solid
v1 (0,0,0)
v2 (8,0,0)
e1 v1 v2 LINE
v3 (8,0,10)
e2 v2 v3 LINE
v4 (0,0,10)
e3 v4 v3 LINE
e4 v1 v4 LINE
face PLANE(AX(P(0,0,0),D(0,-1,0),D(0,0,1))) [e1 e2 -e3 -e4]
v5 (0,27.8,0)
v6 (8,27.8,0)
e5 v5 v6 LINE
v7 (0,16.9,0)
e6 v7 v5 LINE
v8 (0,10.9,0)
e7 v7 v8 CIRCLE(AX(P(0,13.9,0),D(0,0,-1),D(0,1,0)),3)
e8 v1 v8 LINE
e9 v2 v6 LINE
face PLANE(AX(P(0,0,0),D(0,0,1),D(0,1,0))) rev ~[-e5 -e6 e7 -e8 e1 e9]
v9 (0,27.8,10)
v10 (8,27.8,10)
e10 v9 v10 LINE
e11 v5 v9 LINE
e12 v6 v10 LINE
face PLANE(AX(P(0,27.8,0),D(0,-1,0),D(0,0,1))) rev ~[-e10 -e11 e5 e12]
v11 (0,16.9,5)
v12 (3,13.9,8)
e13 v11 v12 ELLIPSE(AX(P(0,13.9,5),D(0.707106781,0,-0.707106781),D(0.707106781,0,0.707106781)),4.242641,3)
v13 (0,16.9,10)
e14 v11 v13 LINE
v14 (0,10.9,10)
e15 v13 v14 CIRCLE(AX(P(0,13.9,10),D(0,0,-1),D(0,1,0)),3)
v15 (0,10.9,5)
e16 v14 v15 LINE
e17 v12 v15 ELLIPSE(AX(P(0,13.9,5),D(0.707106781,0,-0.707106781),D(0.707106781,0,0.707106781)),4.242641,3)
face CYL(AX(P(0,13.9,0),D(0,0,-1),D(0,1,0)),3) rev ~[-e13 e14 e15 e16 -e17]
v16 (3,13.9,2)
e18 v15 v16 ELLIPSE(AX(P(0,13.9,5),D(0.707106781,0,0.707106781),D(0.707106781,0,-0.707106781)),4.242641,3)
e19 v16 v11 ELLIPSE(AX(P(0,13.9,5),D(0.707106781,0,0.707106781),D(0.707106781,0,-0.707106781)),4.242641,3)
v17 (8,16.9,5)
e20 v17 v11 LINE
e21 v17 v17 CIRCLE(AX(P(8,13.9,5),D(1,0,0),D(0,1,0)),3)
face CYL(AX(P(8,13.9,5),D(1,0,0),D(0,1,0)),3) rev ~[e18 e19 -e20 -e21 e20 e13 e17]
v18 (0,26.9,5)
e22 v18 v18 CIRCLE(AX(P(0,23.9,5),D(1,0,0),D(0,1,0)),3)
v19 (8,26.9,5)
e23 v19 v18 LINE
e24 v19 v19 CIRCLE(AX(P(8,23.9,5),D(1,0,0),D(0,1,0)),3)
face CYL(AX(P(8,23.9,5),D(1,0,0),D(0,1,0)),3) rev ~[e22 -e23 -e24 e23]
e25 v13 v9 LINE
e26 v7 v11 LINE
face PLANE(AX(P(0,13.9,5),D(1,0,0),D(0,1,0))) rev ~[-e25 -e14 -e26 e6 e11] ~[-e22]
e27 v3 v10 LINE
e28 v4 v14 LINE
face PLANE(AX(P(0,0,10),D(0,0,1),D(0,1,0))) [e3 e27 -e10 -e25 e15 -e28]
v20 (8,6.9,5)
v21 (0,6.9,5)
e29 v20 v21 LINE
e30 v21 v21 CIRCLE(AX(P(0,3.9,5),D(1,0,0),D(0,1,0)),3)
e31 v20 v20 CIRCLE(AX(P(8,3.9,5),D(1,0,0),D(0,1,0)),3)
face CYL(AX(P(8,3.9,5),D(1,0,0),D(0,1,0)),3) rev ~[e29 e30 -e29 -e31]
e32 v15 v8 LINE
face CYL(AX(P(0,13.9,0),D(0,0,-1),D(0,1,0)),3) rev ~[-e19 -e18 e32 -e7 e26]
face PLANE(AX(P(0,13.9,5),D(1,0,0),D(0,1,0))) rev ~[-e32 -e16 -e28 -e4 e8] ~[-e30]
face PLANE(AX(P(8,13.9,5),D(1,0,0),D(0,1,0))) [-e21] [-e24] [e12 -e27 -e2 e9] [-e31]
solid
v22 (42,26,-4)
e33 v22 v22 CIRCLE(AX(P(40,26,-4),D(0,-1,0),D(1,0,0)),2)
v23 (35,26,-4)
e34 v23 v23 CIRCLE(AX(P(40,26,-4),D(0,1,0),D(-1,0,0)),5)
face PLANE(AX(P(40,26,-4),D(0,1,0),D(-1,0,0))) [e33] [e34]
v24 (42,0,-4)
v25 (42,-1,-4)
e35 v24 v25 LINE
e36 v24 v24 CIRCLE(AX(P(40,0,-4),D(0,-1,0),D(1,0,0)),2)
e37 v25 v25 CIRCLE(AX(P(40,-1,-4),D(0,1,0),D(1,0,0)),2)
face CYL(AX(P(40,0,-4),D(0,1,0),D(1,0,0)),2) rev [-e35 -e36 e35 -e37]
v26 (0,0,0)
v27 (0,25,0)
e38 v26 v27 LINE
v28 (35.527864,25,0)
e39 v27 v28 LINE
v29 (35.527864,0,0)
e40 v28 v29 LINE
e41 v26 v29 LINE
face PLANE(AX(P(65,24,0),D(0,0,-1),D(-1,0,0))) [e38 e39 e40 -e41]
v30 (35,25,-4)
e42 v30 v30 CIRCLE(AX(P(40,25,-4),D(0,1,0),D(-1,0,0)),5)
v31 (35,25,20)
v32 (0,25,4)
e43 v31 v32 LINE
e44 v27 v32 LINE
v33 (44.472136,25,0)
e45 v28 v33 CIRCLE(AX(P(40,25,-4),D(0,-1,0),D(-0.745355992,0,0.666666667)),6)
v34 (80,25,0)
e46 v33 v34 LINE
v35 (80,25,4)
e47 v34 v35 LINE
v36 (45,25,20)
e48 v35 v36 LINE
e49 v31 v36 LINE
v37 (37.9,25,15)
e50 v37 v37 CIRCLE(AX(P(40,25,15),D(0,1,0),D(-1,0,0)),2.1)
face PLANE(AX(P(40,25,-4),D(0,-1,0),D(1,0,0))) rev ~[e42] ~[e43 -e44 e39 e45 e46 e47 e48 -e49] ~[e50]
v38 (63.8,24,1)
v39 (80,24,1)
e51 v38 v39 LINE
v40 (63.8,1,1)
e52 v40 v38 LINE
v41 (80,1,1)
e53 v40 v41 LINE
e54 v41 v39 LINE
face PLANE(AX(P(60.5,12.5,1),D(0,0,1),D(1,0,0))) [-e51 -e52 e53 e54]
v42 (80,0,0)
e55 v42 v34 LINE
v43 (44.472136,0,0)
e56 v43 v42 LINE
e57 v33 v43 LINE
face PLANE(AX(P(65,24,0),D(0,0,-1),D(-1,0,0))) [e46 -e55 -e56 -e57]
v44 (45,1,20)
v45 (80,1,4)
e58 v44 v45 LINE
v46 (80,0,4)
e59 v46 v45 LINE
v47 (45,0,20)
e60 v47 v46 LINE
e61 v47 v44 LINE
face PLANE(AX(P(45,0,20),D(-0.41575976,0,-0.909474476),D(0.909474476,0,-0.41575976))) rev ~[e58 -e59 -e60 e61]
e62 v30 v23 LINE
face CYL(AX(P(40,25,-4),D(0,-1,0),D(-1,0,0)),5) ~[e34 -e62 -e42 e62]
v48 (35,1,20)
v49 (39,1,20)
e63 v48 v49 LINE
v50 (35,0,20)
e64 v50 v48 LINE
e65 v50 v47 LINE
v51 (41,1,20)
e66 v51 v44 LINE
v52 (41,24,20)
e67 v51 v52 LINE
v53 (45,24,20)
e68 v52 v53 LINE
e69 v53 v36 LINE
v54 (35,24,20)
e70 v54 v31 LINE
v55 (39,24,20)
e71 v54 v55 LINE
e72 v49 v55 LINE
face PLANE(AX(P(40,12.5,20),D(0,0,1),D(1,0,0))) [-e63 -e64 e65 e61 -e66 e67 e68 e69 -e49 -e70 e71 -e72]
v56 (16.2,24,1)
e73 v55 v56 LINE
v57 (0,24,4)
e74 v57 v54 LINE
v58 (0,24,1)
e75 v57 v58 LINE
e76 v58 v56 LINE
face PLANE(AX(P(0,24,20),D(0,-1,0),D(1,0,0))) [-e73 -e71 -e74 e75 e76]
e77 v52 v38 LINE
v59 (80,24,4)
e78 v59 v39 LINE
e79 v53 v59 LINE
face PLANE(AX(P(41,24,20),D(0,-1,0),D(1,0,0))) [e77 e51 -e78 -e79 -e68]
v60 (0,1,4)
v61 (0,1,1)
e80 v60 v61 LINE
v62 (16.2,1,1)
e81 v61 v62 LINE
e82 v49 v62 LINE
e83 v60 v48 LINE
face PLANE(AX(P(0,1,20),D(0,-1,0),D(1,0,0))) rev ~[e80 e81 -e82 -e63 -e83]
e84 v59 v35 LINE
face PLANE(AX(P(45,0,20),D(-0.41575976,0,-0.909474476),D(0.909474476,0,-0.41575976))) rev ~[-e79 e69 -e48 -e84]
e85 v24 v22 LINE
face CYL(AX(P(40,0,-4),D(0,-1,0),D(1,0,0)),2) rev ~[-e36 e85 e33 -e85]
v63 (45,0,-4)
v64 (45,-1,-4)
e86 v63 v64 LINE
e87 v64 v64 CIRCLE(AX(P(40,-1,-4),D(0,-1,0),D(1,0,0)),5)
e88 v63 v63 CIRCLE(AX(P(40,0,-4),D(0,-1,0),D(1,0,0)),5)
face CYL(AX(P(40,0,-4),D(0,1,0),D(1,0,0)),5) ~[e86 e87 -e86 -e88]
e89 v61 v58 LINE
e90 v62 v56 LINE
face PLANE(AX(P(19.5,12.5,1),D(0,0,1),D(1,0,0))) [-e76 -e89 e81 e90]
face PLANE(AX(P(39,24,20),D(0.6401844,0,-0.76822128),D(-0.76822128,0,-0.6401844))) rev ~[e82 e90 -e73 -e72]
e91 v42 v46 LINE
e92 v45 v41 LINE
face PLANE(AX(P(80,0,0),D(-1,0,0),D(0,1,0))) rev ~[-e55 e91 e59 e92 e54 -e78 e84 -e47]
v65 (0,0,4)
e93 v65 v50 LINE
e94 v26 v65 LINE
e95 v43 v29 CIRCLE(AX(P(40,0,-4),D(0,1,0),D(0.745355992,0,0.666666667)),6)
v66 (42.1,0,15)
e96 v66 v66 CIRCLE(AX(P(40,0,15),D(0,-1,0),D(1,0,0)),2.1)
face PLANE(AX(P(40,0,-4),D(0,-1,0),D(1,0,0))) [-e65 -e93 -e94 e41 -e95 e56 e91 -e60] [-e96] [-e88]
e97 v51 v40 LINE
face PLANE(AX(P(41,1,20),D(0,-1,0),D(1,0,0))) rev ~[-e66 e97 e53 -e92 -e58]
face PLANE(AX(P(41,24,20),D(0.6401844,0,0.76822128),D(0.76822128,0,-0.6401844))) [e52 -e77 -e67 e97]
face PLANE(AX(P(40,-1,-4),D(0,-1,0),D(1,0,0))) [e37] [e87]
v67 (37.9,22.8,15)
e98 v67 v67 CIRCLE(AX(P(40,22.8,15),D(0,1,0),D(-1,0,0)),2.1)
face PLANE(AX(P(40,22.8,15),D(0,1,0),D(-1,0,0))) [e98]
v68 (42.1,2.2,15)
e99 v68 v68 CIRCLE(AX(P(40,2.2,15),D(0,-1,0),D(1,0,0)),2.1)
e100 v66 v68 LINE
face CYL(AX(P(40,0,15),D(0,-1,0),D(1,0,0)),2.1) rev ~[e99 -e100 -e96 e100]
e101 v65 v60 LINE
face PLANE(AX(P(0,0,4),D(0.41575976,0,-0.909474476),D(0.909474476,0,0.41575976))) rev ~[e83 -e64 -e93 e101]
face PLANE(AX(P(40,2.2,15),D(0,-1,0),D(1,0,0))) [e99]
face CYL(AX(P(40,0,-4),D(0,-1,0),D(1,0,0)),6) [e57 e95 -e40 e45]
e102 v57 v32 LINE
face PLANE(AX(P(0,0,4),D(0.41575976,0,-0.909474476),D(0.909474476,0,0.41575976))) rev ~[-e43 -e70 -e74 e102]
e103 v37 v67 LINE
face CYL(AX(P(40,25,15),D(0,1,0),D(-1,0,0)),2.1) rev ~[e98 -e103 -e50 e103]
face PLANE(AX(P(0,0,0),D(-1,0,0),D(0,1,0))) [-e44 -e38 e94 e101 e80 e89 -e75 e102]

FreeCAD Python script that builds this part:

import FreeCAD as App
import Part
import Sketcher
from FreeCAD import Vector

doc = App.newDocument("Part")
params = doc.addObject("Spreadsheet::Sheet", "Params")
for row, (alias, value) in enumerate([
    ("sketch1_width", "80 mm"),
    ("sketch1_height", "25 mm"),
    ("pad1_length", "20 mm"),
    ("sketch2_width", "39 mm"),
    ("sketch2_height", "23 mm"),
    ("pocket1_length", "19 mm"),
    ("sketch3_width", "35 mm"),
    ("sketch3_height", "16 mm"),
    ("sketch4_width", "24 mm"),
    ("sketch4_height", "20 mm"),
    ("pad2_length", "23 mm"),
    ("sketch5_width", "24 mm"),
    ("sketch5_height", "20 mm"),
    ("pad3_length", "23 mm"),
    ("sketch6_diameter", "6 mm"),
    ("pad4_length", "25 mm"),
    ("sketch7_diameter", "4.2 mm"),
    ("pocket3_length", "2.2 mm"),
    ("sketch8_diameter", "4.2 mm"),
    ("pocket4_length", "2.2 mm"),
    ("sketch9_diameter", "12 mm"),
    ("pad5_length", "25 mm"),
    ("sketch10_diameter", "10 mm"),
    ("pad6_length", "1 mm"),
    ("sketch11_diameter", "10 mm"),
    ("pad7_length", "1 mm"),
    ("sketch12_diameter", "4 mm"),
    ("sketch13_height", "10 mm"),
    ("sketch13_width", "27.8 mm"),
    ("pad8_length", "8 mm"),
    ("sketch14_diameter", "6 mm"),
    ("sketch15_diameter", "6 mm"),
], start=1):
    params.set(f"A{row}", alias)
    params.set(f"B{row}", "=" + value)
    params.setAlias(f"B{row}", alias)

body = doc.addObject("PartDesign::Body", "Body")

sketch1 = body.newObject("Sketcher::SketchObject", "Sketch")
sketch1.AttachmentSupport = (doc.getObject("XY_Plane"), [""])
sketch1.MapMode = "FlatFace"
sketch1.addGeometry([
    Part.LineSegment(Vector(0, 25, 0), Vector(0, 0, 0)),
    Part.LineSegment(Vector(0, 0, 0), Vector(80, 0, 0)),
    Part.LineSegment(Vector(80, 0, 0), Vector(80, 25, 0)),
    Part.LineSegment(Vector(80, 25, 0), Vector(0, 25, 0)),
], False)
sketch1.addConstraint([
    Sketcher.Constraint("Coincident", 0, 2, 1, 1),
    Sketcher.Constraint("Coincident", 1, 2, 2, 1),
    Sketcher.Constraint("Coincident", 2, 2, 3, 1),
    Sketcher.Constraint("Coincident", 3, 2, 0, 1),
    Sketcher.Constraint("Vertical", 0),
    Sketcher.Constraint("Horizontal", 1),
    Sketcher.Constraint("Vertical", 2),
    Sketcher.Constraint("Horizontal", 3),
    Sketcher.Constraint("Coincident", 0, 2, -1, 1),
    Sketcher.Constraint("DistanceX", 1, 1, 1, 2, 80.0),
    Sketcher.Constraint("DistanceY", 0, 2, 0, 1, 25.0),
])
sketch1.setExpression("Constraints[9]", "Params.sketch1_width")
sketch1.setExpression("Constraints[10]", "Params.sketch1_height")
pad1 = body.newObject("PartDesign::Pad", "Pad")
pad1.Profile = sketch1
pad1.setExpression("Length", "Params.pad1_length")

sketch2 = body.newObject("Sketcher::SketchObject", "Sketch001")
sketch2.AttachmentSupport = (doc.getObject("XY_Plane"), [""])
sketch2.MapMode = "FlatFace"
sketch2.AttachmentOffset = App.Placement(Vector(0, 0, 20), App.Rotation())
sketch2.addGeometry([
    Part.LineSegment(Vector(0, 24, 0), Vector(0, 1, 0)),
    Part.LineSegment(Vector(0, 1, 0), Vector(39, 1, 0)),
    Part.LineSegment(Vector(39, 1, 0), Vector(39, 24, 0)),
    Part.LineSegment(Vector(39, 24, 0), Vector(0, 24, 0)),
    Part.LineSegment(Vector(41, 24, 0), Vector(41, 1, 0)),
    Part.LineSegment(Vector(41, 1, 0), Vector(80, 1, 0)),
    Part.LineSegment(Vector(80, 1, 0), Vector(80, 24, 0)),
    Part.LineSegment(Vector(80, 24, 0), Vector(41, 24, 0)),
], False)
sketch2.addConstraint([
    Sketcher.Constraint("Coincident", 0, 2, 1, 1),
    Sketcher.Constraint("Coincident", 1, 2, 2, 1),
    Sketcher.Constraint("Coincident", 2, 2, 3, 1),
    Sketcher.Constraint("Coincident", 3, 2, 0, 1),
    Sketcher.Constraint("Coincident", 4, 2, 5, 1),
    Sketcher.Constraint("Coincident", 5, 2, 6, 1),
    Sketcher.Constraint("Coincident", 6, 2, 7, 1),
    Sketcher.Constraint("Coincident", 7, 2, 4, 1),
    Sketcher.Constraint("Vertical", 0),
    Sketcher.Constraint("Horizontal", 1),
    Sketcher.Constraint("Vertical", 2),
    Sketcher.Constraint("Horizontal", 3),
    Sketcher.Constraint("Vertical", 4),
    Sketcher.Constraint("Horizontal", 5),
    Sketcher.Constraint("Vertical", 6),
    Sketcher.Constraint("Horizontal", 7),
    Sketcher.Constraint("PointOnObject", 0, 2, -2),
    Sketcher.Constraint("Horizontal", 1, 2, 4, 2),
    Sketcher.Constraint("Horizontal", 3, 2, 6, 2),
    Sketcher.Constraint("Equal", 3, 5),
    Sketcher.Constraint("DistanceX", 1, 1, 1, 2, 39.0),
    Sketcher.Constraint("DistanceY", 0, 2, 0, 1, 23.0),
    Sketcher.Constraint("DistanceY", -1, 1, 0, 2, 1.0),
    Sketcher.Constraint("DistanceX", -1, 1, 4, 2, 41.0),
])
sketch2.setExpression("Constraints[20]", "Params.sketch2_width")
sketch2.setExpression("Constraints[21]", "Params.sketch2_height")
pocket1 = body.newObject("PartDesign::Pocket", "Pocket")
pocket1.Profile = sketch2
pocket1.setExpression("Length", "Params.pocket1_length")

sketch3 = body.newObject("Sketcher::SketchObject", "Sketch002")
sketch3.AttachmentSupport = (doc.getObject("XZ_Plane"), [""])
sketch3.MapMode = "FlatFace"
sketch3.addGeometry([
    Part.LineSegment(Vector(0, 4, 0), Vector(35, 20, 0)),
    Part.LineSegment(Vector(35, 20, 0), Vector(0, 20, 0)),
    Part.LineSegment(Vector(0, 20, 0), Vector(0, 4, 0)),
    Part.LineSegment(Vector(80, 4, 0), Vector(80, 20, 0)),
    Part.LineSegment(Vector(80, 20, 0), Vector(45, 20, 0)),
    Part.LineSegment(Vector(45, 20, 0), Vector(80, 4, 0)),
], False)
sketch3.addConstraint([
    Sketcher.Constraint("Coincident", 0, 2, 1, 1),
    Sketcher.Constraint("Coincident", 1, 2, 2, 1),
    Sketcher.Constraint("Coincident", 2, 2, 0, 1),
    Sketcher.Constraint("Coincident", 3, 2, 4, 1),
    Sketcher.Constraint("Coincident", 4, 2, 5, 1),
    Sketcher.Constraint("Coincident", 5, 2, 3, 1),
    Sketcher.Constraint("Horizontal", 1),
    Sketcher.Constraint("Vertical", 2),
    Sketcher.Constraint("Vertical", 3),
    Sketcher.Constraint("Horizontal", 4),
    Sketcher.Constraint("PointOnObject", 1, 2, -2),
    Sketcher.Constraint("Horizontal", 1, 2, 3, 2),
    Sketcher.Constraint("Horizontal", 2, 2, 5, 2),
    Sketcher.Constraint("Equal", 1, 4),
    Sketcher.Constraint("DistanceX", 1, 2, 1, 1, 35.0),
    Sketcher.Constraint("DistanceY", 2, 2, 2, 1, 16.0),
    Sketcher.Constraint("DistanceY", -1, 1, 0, 2, 20.0),
    Sketcher.Constraint("DistanceX", -1, 1, 3, 2, 80.0),
])
sketch3.setExpression("Constraints[14]", "Params.sketch3_width")
sketch3.setExpression("Constraints[15]", "Params.sketch3_height")
pocket2 = body.newObject("PartDesign::Pocket", "Pocket001")
pocket2.Profile = sketch3
pocket2.Type = "ThroughAll"

sketch4 = body.newObject("Sketcher::SketchObject", "Sketch003")
sketch4.AttachmentSupport = (doc.getObject("XZ_Plane"), [""])
sketch4.MapMode = "FlatFace"
sketch4.AttachmentOffset = App.Placement(Vector(0, 0, -24), App.Rotation())
sketch4.addGeometry([
    Part.LineSegment(Vector(15, 0, 0), Vector(39, 0, 0)),
    Part.LineSegment(Vector(39, 0, 0), Vector(39, 20, 0)),
    Part.LineSegment(Vector(39, 20, 0), Vector(15, 0, 0)),
], False)
sketch4.addConstraint([
    Sketcher.Constraint("Coincident", 0, 2, 1, 1),
    Sketcher.Constraint("Coincident", 1, 2, 2, 1),
    Sketcher.Constraint("Coincident", 2, 2, 0, 1),
    Sketcher.Constraint("Horizontal", 0),
    Sketcher.Constraint("Vertical", 1),
    Sketcher.Constraint("PointOnObject", 0, 2, -1),
    Sketcher.Constraint("DistanceX", 0, 1, 0, 2, 24.0),
    Sketcher.Constraint("DistanceY", 1, 1, 1, 2, 20.0),
    Sketcher.Constraint("DistanceX", -1, 1, 0, 2, 39.0),
])
sketch4.setExpression("Constraints[6]", "Params.sketch4_width")
sketch4.setExpression("Constraints[7]", "Params.sketch4_height")
pad2 = body.newObject("PartDesign::Pad", "Pad001")
pad2.Profile = sketch4
pad2.setExpression("Length", "Params.pad2_length")

sketch5 = body.newObject("Sketcher::SketchObject", "Sketch004")
sketch5.AttachmentSupport = (doc.getObject("XZ_Plane"), [""])
sketch5.MapMode = "FlatFace"
sketch5.AttachmentOffset = App.Placement(Vector(0, 0, -24), App.Rotation())
sketch5.addGeometry([
    Part.LineSegment(Vector(41, 20, 0), Vector(41, 0, 0)),
    Part.LineSegment(Vector(41, 0, 0), Vector(65, 0, 0)),
    Part.LineSegment(Vector(65, 0, 0), Vector(41, 20, 0)),
], False)
sketch5.addConstraint([
    Sketcher.Constraint("Coincident", 0, 2, 1, 1),
    Sketcher.Constraint("Coincident", 1, 2, 2, 1),
    Sketcher.Constraint("Coincident", 2, 2, 0, 1),
    Sketcher.Constraint("Vertical", 0),
    Sketcher.Constraint("Horizontal", 1),
    Sketcher.Constraint("PointOnObject", 0, 2, -1),
    Sketcher.Constraint("DistanceX", 1, 1, 1, 2, 24.0),
    Sketcher.Constraint("DistanceY", 0, 2, 0, 1, 20.0),
    Sketcher.Constraint("DistanceX", -1, 1, 0, 2, 41.0),
])
sketch5.setExpression("Constraints[6]", "Params.sketch5_width")
sketch5.setExpression("Constraints[7]", "Params.sketch5_height")
pad3 = body.newObject("PartDesign::Pad", "Pad002")
pad3.Profile = sketch5
pad3.setExpression("Length", "Params.pad3_length")

sketch6 = body.newObject("Sketcher::SketchObject", "Sketch005")
sketch6.AttachmentSupport = (doc.getObject("XZ_Plane"), [""])
sketch6.MapMode = "FlatFace"
sketch6.addGeometry(Part.Circle(Vector(40, 15, 0), Vector(0, 0, 1), 3), False)
sketch6.addConstraint([
    Sketcher.Constraint("Diameter", 0, 6.0),
    Sketcher.Constraint("DistanceX", -1, 1, 0, 3, 40.0),
    Sketcher.Constraint("DistanceY", -1, 1, 0, 3, 15.0),
])
sketch6.setExpression("Constraints[0]", "Params.sketch6_diameter")
pad4 = body.newObject("PartDesign::Pad", "Pad003")
pad4.Profile = sketch6
pad4.setExpression("Length", "Params.pad4_length")
pad4.Reversed = True

sketch7 = body.newObject("Sketcher::SketchObject", "Sketch006")
sketch7.AttachmentSupport = (doc.getObject("XZ_Plane"), [""])
sketch7.MapMode = "FlatFace"
sketch7.addGeometry(Part.Circle(Vector(40, 15, 0), Vector(0, 0, 1), 2.1), False)
sketch7.addConstraint([
    Sketcher.Constraint("Diameter", 0, 4.2),
    Sketcher.Constraint("DistanceX", -1, 1, 0, 3, 40.0),
    Sketcher.Constraint("DistanceY", -1, 1, 0, 3, 15.0),
])
sketch7.setExpression("Constraints[0]", "Params.sketch7_diameter")
pocket3 = body.newObject("PartDesign::Pocket", "Pocket002")
pocket3.Profile = sketch7
pocket3.setExpression("Length", "Params.pocket3_length")

sketch8 = body.newObject("Sketcher::SketchObject", "Sketch007")
sketch8.AttachmentSupport = (doc.getObject("XZ_Plane"), [""])
sketch8.MapMode = "FlatFace"
sketch8.AttachmentOffset = App.Placement(Vector(0, 0, -25), App.Rotation())
sketch8.addGeometry(Part.Circle(Vector(40, 15, 0), Vector(0, 0, 1), 2.1), False)
sketch8.addConstraint([
    Sketcher.Constraint("Diameter", 0, 4.2),
    Sketcher.Constraint("DistanceX", -1, 1, 0, 3, 40.0),
    Sketcher.Constraint("DistanceY", -1, 1, 0, 3, 15.0),
])
sketch8.setExpression("Constraints[0]", "Params.sketch8_diameter")
pocket4 = body.newObject("PartDesign::Pocket", "Pocket003")
pocket4.Profile = sketch8
pocket4.setExpression("Length", "Params.pocket4_length")
pocket4.Reversed = True

sketch9 = body.newObject("Sketcher::SketchObject", "Sketch008")
sketch9.AttachmentSupport = (doc.getObject("XZ_Plane"), [""])
sketch9.MapMode = "FlatFace"
sketch9.addGeometry(Part.Circle(Vector(40, -4, 0), Vector(0, 0, 1), 6), False)
sketch9.addConstraint([
    Sketcher.Constraint("Diameter", 0, 12.0),
    Sketcher.Constraint("DistanceX", -1, 1, 0, 3, 40.0),
    Sketcher.Constraint("DistanceY", 0, 3, -1, 1, 4.0),
])
sketch9.setExpression("Constraints[0]", "Params.sketch9_diameter")
pad5 = body.newObject("PartDesign::Pad", "Pad004")
pad5.Profile = sketch9
pad5.setExpression("Length", "Params.pad5_length")
pad5.Reversed = True

sketch10 = body.newObject("Sketcher::SketchObject", "Sketch009")
sketch10.AttachmentSupport = (doc.getObject("XZ_Plane"), [""])
sketch10.MapMode = "FlatFace"
sketch10.addGeometry(Part.Circle(Vector(40, -4, 0), Vector(0, 0, 1), 5), False)
sketch10.addConstraint([
    Sketcher.Constraint("Diameter", 0, 10.0),
    Sketcher.Constraint("DistanceX", -1, 1, 0, 3, 40.0),
    Sketcher.Constraint("DistanceY", 0, 3, -1, 1, 4.0),
])
sketch10.setExpression("Constraints[0]", "Params.sketch10_diameter")
pad6 = body.newObject("PartDesign::Pad", "Pad005")
pad6.Profile = sketch10
pad6.setExpression("Length", "Params.pad6_length")

sketch11 = body.newObject("Sketcher::SketchObject", "Sketch010")
sketch11.AttachmentSupport = (doc.getObject("XZ_Plane"), [""])
sketch11.MapMode = "FlatFace"
sketch11.AttachmentOffset = App.Placement(Vector(0, 0, -25), App.Rotation())
sketch11.addGeometry(Part.Circle(Vector(40, -4, 0), Vector(0, 0, 1), 5), False)
sketch11.addConstraint([
    Sketcher.Constraint("Diameter", 0, 10.0),
    Sketcher.Constraint("DistanceX", -1, 1, 0, 3, 40.0),
    Sketcher.Constraint("DistanceY", 0, 3, -1, 1, 4.0),
])
sketch11.setExpression("Constraints[0]", "Params.sketch11_diameter")
pad7 = body.newObject("PartDesign::Pad", "Pad006")
pad7.Profile = sketch11
pad7.setExpression("Length", "Params.pad7_length")
pad7.Reversed = True

sketch12 = body.newObject("Sketcher::SketchObject", "Sketch011")
sketch12.AttachmentSupport = (doc.getObject("XZ_Plane"), [""])
sketch12.MapMode = "FlatFace"
sketch12.addGeometry(Part.Circle(Vector(40, -4, 0), Vector(0, 0, 1), 2), False)
sketch12.addConstraint([
    Sketcher.Constraint("Diameter", 0, 4.0),
    Sketcher.Constraint("DistanceX", -1, 1, 0, 3, 40.0),
    Sketcher.Constraint("DistanceY", 0, 3, -1, 1, 4.0),
])
sketch12.setExpression("Constraints[0]", "Params.sketch12_diameter")
pocket5 = body.newObject("PartDesign::Pocket", "Pocket004")
pocket5.Profile = sketch12
pocket5.Type = "ThroughAll"
pocket5.Midplane = True
body2 = doc.addObject("PartDesign::Body", "Body001")

sketch13 = body2.newObject("Sketcher::SketchObject", "Sketch012")
sketch13.AttachmentSupport = (doc.getObject("YZ_Plane001"), [""])
sketch13.MapMode = "FlatFace"
sketch13.addGeometry([
    Part.LineSegment(Vector(0, 10, 0), Vector(0, 0, 0)),
    Part.LineSegment(Vector(0, 0, 0), Vector(28, 0, 0)),
    Part.LineSegment(Vector(28, 0, 0), Vector(28, 10, 0)),
    Part.LineSegment(Vector(28, 10, 0), Vector(0, 10, 0)),
], False)
sketch13.addConstraint([
    Sketcher.Constraint("Coincident", 0, 2, 1, 1),
    Sketcher.Constraint("Coincident", 1, 2, 2, 1),
    Sketcher.Constraint("Coincident", 2, 2, 3, 1),
    Sketcher.Constraint("Coincident", 3, 2, 0, 1),
    Sketcher.Constraint("Vertical", 0),
    Sketcher.Constraint("Horizontal", 1),
    Sketcher.Constraint("Vertical", 2),
    Sketcher.Constraint("Horizontal", 3),
    Sketcher.Constraint("Coincident", 0, 2, -1, 1),
    Sketcher.Constraint("DistanceY", 0, 2, 0, 1, 10.0),
    Sketcher.Constraint("DistanceX", 1, 1, 1, 2, 27.8),
])
sketch13.setExpression("Constraints[9]", "Params.sketch13_height")
sketch13.setExpression("Constraints[10]", "Params.sketch13_width")
pad8 = body2.newObject("PartDesign::Pad", "Pad007")
pad8.Profile = sketch13
pad8.setExpression("Length", "Params.pad8_length")

sketch14 = body2.newObject("Sketcher::SketchObject", "Sketch013")
sketch14.AttachmentSupport = (doc.getObject("YZ_Plane001"), [""])
sketch14.MapMode = "FlatFace"
sketch14.AttachmentOffset = App.Placement(Vector(0, 0, 8), App.Rotation())
sketch14.addGeometry([
    Part.Circle(Vector(3.9, 5, 0), Vector(0, 0, 1), 3),
    Part.Circle(Vector(23.9, 5, 0), Vector(0, 0, 1), 3),
    Part.Circle(Vector(13.9, 5, 0), Vector(0, 0, 1), 3),
], False)
sketch14.addConstraint([
    Sketcher.Constraint("Equal", 0, 1),
    Sketcher.Constraint("Equal", 1, 2),
    Sketcher.Constraint("Horizontal", 0, 3, 1, 3),
    Sketcher.Constraint("Horizontal", 1, 3, 2, 3),
    Sketcher.Constraint("Diameter", 0, 6.0),
    Sketcher.Constraint("DistanceY", -1, 1, 0, 3, 5.0),
    Sketcher.Constraint("DistanceX", 0, 3, 1, 3, 20.0),
    Sketcher.Constraint("DistanceX", 2, 3, 1, 3, 10.0),
    Sketcher.Constraint("DistanceX", -1, 1, 0, 3, 3.9),
])
sketch14.setExpression("Constraints[4]", "Params.sketch14_diameter")
pocket6 = body2.newObject("PartDesign::Pocket", "Pocket005")
pocket6.Profile = sketch14
pocket6.Type = "ThroughAll"

sketch15 = body2.newObject("Sketcher::SketchObject", "Sketch014")
sketch15.AttachmentSupport = (doc.getObject("XY_Plane001"), [""])
sketch15.MapMode = "FlatFace"
sketch15.addGeometry(Part.Circle(Vector(0, 13.9, 0), Vector(0, 0, 1), 3), False)
sketch15.addConstraint([
    Sketcher.Constraint("PointOnObject", 0, 3, -2),
    Sketcher.Constraint("Diameter", 0, 6.0),
    Sketcher.Constraint("DistanceY", -1, 1, 0, 3, 13.9),
])
sketch15.setExpression("Constraints[1]", "Params.sketch15_diameter")
pocket7 = body2.newObject("PartDesign::Pocket", "Pocket006")
pocket7.Profile = sketch15
pocket7.Type = "ThroughAll"
pocket7.Reversed = True

doc.recompute()
